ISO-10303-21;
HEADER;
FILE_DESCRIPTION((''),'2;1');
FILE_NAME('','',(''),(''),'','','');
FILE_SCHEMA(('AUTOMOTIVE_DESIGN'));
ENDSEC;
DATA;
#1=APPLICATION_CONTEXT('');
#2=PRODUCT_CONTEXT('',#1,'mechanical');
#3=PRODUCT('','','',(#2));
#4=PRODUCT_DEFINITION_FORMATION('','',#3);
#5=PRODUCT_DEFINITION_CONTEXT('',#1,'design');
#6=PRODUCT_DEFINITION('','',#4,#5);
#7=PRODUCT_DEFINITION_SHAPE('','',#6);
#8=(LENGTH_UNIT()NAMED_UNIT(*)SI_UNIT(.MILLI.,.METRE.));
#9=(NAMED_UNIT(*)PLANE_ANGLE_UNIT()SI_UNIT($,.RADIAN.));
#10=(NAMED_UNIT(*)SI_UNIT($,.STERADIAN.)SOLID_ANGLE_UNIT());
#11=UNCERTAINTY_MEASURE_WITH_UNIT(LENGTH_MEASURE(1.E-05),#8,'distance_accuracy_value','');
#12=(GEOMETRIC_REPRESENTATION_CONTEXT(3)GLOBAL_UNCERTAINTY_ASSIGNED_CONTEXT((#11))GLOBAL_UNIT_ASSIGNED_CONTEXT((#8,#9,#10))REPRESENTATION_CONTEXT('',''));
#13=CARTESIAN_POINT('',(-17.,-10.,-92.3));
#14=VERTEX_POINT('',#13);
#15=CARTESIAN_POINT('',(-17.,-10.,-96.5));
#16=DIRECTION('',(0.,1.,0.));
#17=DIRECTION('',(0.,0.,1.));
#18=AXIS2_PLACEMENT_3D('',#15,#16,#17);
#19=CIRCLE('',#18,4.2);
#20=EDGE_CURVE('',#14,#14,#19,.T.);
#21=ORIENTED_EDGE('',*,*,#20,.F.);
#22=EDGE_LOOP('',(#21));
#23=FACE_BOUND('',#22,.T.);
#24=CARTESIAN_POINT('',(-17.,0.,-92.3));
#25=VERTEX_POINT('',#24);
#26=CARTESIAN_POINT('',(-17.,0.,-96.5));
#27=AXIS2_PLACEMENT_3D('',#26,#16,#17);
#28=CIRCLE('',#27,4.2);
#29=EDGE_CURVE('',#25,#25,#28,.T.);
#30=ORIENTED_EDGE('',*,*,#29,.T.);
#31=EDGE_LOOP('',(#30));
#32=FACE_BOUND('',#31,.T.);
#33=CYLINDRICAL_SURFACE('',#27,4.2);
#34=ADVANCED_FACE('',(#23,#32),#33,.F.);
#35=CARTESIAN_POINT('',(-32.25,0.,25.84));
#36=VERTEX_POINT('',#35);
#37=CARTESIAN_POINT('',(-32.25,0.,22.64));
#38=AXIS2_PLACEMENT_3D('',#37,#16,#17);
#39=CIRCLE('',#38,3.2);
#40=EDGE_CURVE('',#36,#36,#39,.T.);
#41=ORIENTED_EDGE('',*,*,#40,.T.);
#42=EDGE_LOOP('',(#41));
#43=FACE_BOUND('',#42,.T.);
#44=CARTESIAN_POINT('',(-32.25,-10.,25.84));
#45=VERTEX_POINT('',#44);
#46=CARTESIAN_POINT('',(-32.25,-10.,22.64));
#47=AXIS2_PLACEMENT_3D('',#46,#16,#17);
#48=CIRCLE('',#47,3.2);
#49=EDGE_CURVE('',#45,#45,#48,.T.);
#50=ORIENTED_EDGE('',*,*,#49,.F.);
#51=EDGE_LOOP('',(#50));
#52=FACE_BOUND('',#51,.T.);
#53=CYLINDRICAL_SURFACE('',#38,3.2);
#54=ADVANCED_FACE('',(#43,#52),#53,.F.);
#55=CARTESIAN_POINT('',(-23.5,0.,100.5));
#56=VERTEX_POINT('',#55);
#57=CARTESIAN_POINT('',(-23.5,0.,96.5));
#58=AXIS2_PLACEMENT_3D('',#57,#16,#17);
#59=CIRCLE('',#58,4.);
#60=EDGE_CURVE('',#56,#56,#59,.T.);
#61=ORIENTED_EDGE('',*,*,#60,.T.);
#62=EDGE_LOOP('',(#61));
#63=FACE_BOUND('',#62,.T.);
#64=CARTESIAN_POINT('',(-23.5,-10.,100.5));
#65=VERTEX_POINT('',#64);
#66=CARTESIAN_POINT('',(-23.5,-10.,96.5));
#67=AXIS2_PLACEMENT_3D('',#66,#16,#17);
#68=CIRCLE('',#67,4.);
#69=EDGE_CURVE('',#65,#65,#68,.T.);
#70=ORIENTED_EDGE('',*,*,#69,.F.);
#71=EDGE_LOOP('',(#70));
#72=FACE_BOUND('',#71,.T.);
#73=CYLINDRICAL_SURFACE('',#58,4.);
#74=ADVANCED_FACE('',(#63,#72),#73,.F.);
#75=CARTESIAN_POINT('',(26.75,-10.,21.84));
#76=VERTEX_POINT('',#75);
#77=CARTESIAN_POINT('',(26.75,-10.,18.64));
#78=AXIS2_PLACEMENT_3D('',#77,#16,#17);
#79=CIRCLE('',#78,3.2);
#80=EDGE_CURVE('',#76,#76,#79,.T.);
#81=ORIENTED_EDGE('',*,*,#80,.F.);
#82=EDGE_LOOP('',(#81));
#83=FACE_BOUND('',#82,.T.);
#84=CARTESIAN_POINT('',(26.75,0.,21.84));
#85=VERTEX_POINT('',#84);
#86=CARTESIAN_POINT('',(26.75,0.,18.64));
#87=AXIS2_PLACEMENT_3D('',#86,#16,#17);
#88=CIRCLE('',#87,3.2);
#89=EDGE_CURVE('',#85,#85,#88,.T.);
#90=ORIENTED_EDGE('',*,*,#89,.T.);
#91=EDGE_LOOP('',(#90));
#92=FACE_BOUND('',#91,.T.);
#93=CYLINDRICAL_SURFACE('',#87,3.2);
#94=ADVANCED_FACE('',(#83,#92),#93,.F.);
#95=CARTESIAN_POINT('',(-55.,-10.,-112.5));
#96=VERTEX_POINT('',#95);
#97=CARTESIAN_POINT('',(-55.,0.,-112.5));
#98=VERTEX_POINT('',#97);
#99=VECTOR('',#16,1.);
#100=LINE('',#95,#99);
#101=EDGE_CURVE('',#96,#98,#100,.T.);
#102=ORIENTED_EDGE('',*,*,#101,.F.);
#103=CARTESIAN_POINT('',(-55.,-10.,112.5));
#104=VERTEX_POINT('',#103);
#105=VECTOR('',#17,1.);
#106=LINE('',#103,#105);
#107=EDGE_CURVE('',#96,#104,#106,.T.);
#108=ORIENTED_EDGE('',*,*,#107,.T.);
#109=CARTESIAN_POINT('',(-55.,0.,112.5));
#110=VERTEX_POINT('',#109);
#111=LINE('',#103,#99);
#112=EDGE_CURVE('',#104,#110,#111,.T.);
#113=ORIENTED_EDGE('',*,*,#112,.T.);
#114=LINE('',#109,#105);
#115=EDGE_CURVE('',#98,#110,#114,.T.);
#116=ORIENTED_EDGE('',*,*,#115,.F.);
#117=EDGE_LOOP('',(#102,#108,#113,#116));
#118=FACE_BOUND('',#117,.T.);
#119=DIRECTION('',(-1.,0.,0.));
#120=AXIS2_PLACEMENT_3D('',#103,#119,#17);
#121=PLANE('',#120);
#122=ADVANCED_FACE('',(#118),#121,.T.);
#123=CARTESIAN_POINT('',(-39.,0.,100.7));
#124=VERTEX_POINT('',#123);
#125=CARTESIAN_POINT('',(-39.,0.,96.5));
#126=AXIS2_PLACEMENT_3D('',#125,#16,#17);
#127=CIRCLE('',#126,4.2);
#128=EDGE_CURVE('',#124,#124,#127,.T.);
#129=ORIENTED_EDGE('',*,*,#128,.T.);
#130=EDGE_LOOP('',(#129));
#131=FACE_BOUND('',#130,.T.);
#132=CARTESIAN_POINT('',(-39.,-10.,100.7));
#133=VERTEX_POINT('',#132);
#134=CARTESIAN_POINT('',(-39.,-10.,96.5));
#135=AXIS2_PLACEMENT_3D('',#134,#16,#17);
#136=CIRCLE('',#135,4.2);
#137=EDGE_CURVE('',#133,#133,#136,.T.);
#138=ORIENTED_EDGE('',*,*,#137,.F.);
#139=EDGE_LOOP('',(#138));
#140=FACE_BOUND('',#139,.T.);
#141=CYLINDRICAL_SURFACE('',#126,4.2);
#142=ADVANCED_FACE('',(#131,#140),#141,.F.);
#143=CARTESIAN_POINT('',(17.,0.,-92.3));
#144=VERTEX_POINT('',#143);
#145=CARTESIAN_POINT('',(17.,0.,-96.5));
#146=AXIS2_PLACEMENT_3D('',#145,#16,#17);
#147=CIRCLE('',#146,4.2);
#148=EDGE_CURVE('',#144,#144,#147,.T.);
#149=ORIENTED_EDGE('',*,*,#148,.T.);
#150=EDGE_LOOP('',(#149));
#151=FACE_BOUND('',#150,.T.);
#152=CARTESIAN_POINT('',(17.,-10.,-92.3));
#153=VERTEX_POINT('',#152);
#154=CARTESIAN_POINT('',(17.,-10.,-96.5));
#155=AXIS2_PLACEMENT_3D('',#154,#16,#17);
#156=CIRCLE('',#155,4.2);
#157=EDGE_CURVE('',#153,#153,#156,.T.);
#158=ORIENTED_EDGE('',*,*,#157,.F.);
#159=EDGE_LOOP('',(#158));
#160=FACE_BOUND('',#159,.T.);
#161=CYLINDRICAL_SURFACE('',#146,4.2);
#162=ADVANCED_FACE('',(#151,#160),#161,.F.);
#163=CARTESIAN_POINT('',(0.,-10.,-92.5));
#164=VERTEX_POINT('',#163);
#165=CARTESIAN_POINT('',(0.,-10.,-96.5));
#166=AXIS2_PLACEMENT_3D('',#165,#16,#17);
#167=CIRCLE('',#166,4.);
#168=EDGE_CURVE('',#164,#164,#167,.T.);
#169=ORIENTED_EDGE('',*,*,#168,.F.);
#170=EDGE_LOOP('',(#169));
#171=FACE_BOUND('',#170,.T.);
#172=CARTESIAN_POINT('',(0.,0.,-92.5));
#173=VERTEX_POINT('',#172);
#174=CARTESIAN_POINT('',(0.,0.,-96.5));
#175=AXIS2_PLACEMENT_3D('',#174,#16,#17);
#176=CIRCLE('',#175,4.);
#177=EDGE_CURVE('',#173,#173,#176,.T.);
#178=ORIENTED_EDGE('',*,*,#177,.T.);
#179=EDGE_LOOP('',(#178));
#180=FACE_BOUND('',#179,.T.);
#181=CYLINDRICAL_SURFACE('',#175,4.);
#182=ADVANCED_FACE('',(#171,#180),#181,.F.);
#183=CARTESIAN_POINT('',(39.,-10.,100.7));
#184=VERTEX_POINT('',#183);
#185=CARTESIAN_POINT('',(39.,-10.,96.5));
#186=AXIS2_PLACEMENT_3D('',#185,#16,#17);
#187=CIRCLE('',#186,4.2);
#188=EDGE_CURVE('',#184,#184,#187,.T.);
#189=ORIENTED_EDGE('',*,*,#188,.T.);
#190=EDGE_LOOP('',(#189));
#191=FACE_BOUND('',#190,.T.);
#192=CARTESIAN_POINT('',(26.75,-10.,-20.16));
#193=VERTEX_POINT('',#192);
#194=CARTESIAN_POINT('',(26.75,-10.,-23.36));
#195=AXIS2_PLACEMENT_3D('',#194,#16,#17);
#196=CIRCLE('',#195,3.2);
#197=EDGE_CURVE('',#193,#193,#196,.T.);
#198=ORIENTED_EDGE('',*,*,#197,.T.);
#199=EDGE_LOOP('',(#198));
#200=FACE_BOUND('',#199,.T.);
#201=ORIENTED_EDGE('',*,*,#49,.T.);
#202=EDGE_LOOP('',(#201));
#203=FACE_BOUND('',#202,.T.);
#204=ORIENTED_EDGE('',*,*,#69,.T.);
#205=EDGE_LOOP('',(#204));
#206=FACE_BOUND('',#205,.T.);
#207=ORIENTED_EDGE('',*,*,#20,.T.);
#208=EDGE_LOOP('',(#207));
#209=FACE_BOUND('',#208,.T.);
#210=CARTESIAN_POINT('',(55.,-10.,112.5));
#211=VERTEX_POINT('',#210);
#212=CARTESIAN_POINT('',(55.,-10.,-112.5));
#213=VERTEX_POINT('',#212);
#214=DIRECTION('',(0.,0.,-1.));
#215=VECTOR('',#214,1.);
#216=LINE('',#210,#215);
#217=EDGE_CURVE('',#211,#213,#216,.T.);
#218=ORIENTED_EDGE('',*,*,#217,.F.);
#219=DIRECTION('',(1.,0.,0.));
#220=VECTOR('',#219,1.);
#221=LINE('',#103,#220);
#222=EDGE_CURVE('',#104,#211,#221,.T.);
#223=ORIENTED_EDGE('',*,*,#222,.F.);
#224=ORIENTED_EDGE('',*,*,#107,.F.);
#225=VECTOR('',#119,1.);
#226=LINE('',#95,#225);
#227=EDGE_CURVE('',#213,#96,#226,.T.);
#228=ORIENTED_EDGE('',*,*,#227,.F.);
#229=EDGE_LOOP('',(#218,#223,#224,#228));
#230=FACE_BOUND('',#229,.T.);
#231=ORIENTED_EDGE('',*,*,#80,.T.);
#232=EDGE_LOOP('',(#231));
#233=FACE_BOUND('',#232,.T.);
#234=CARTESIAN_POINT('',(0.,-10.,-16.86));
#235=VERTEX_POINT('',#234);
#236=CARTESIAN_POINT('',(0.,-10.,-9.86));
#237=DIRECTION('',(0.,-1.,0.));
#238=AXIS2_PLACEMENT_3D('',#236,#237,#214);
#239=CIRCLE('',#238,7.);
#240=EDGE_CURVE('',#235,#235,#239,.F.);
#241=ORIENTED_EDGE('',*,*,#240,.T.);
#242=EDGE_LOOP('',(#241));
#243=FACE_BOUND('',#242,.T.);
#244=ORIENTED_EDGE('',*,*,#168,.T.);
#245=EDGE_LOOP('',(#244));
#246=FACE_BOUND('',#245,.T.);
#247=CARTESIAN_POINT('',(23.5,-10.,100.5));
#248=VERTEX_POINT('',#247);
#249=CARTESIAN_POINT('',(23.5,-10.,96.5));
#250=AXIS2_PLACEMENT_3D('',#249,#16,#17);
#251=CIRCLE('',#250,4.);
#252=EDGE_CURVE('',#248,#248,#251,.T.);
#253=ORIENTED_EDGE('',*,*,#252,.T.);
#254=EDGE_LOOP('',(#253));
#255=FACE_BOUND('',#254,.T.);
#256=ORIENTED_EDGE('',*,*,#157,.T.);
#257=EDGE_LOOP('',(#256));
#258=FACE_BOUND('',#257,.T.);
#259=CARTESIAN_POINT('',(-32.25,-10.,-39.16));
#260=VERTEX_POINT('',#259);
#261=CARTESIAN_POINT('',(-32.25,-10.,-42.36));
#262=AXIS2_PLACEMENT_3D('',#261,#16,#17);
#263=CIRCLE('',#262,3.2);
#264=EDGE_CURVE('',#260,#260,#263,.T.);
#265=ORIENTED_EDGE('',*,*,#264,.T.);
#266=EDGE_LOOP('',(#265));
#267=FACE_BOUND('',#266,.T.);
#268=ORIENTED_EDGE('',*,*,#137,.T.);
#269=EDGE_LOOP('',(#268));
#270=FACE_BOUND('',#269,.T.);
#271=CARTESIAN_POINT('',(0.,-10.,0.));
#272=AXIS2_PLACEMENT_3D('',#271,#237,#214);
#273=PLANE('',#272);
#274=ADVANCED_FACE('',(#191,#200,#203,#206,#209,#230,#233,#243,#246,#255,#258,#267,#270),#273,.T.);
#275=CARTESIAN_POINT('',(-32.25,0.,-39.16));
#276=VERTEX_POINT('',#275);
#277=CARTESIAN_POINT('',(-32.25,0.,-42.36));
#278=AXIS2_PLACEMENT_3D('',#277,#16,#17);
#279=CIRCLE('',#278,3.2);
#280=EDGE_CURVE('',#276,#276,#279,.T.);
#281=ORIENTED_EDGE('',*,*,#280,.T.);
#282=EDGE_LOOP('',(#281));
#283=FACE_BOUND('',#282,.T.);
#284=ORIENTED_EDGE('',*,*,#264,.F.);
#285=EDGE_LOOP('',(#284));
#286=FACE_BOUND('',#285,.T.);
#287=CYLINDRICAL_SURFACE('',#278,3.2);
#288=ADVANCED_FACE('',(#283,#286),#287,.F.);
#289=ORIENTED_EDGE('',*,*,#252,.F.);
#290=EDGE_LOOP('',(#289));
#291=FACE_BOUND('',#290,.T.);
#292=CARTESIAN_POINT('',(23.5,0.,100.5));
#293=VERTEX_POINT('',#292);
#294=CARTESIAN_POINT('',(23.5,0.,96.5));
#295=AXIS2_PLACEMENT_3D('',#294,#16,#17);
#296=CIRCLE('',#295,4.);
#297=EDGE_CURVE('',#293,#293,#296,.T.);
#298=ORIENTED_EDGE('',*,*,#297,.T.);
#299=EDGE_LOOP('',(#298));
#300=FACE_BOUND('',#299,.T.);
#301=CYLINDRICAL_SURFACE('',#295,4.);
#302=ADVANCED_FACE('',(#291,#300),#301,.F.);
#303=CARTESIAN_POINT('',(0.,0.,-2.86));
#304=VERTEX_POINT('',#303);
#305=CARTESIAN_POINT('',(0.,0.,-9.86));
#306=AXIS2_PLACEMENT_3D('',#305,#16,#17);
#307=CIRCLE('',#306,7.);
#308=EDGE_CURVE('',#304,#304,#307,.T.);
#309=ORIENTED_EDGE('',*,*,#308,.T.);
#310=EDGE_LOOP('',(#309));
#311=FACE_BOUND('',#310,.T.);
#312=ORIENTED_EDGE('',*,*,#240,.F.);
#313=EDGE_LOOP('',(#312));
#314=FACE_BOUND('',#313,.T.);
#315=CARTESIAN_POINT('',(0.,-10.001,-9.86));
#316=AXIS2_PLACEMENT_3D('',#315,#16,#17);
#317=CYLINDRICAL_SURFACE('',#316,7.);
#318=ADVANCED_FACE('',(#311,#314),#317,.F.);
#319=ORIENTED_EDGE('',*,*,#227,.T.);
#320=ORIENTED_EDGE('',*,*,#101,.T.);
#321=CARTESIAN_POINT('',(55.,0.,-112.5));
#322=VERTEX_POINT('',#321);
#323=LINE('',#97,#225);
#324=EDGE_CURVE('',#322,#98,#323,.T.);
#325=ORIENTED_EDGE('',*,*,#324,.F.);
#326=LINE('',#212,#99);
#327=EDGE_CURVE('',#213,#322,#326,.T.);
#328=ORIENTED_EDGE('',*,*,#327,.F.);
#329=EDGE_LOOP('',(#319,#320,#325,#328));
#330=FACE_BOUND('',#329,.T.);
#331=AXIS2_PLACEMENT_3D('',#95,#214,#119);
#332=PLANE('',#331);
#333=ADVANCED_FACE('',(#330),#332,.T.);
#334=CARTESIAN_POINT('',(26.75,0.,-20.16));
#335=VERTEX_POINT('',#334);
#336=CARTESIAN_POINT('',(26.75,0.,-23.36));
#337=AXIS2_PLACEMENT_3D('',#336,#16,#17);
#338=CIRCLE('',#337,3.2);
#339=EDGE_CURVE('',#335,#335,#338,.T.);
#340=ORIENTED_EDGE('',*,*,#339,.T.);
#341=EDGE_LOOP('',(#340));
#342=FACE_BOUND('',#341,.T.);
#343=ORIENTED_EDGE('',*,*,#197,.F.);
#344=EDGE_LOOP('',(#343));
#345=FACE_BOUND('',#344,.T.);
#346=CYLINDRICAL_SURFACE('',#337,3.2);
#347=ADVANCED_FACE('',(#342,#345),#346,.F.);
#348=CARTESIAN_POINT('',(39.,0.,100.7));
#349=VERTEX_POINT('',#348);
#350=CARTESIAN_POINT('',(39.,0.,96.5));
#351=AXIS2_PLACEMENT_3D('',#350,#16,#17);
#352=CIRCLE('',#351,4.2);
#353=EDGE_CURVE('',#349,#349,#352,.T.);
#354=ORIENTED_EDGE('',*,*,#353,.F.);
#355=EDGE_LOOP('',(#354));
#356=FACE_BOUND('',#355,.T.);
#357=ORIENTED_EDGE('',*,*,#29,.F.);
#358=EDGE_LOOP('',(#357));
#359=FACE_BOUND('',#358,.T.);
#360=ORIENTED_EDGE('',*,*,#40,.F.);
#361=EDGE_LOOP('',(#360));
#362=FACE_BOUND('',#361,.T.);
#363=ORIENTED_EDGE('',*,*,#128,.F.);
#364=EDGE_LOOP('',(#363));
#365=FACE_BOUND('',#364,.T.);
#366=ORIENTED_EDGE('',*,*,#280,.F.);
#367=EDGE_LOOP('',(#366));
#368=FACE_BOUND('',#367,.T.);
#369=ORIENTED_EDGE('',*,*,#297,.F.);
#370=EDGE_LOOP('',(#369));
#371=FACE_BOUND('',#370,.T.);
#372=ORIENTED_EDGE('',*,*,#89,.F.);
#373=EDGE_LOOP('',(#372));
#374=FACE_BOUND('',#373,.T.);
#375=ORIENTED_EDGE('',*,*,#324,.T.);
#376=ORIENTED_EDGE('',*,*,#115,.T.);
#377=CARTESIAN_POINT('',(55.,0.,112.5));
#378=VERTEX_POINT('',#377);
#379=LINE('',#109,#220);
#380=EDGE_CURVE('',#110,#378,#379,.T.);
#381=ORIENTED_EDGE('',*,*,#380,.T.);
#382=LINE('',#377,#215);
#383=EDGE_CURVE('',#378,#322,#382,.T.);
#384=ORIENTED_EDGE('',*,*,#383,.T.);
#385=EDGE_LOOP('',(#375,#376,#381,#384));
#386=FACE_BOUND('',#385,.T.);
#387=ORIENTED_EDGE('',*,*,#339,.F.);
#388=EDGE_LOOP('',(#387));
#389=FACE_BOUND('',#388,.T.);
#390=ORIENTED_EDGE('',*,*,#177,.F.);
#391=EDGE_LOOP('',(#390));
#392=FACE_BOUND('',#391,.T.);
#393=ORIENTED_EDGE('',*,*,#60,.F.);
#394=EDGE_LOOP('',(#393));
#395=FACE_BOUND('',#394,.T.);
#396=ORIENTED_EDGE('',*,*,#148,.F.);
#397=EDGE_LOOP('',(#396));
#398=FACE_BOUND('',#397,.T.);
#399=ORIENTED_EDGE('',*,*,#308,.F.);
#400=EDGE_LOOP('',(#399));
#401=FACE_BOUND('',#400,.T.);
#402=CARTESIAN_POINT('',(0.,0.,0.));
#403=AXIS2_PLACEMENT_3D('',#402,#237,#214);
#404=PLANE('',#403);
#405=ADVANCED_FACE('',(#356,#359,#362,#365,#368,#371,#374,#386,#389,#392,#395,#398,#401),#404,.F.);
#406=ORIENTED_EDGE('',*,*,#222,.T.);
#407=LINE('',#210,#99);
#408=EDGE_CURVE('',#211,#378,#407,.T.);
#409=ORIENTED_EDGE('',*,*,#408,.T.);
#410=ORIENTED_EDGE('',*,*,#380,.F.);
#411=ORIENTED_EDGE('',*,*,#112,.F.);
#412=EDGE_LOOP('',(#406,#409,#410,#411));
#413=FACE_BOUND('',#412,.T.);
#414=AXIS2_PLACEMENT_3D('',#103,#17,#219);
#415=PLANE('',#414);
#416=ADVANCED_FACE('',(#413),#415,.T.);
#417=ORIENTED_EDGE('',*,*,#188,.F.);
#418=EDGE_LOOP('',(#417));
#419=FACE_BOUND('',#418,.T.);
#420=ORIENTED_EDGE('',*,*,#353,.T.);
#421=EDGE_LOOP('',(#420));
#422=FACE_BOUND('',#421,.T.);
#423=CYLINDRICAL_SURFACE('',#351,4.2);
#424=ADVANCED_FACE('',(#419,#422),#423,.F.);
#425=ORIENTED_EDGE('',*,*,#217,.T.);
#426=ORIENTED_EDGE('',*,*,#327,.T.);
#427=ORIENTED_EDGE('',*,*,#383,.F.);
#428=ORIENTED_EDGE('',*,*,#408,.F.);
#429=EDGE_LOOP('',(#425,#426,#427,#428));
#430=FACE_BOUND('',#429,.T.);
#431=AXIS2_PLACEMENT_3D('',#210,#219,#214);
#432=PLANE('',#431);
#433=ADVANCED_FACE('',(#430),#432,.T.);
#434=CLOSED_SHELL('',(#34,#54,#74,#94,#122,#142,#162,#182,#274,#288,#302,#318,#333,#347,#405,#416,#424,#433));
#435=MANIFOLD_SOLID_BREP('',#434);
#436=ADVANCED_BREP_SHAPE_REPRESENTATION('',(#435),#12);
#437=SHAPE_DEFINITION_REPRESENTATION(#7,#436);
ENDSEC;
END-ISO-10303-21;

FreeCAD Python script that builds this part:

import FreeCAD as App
import Part
import Sketcher
Q = App.Units.Quantity

doc = App.newDocument("Part")
body = doc.addObject("PartDesign::Body", "Body")

sketch1 = body.newObject("Sketcher::SketchObject", "Sketch")
sketch1.AttachmentSupport = (doc.getObject("XZ_Plane"), [""])
sketch1.MapMode = "FlatFace"
sketch1.addGeometry([
    Part.LineSegment(App.Vector(-55, -112, 0), App.Vector(-55, 112, 0)),
    Part.LineSegment(App.Vector(-55, 112, 0), App.Vector(55, 112, 0)),
    Part.LineSegment(App.Vector(55, 112, 0), App.Vector(55, -112, 0)),
    Part.LineSegment(App.Vector(55, -112, 0), App.Vector(-55, -112, 0)),
], False)
sketch1.addConstraint([
    Sketcher.Constraint("Coincident", 0, 2, 1, 1),
    Sketcher.Constraint("Coincident", 1, 2, 2, 1),
    Sketcher.Constraint("Coincident", 2, 2, 3, 1),
    Sketcher.Constraint("Coincident", 3, 2, 0, 1),
    Sketcher.Constraint("Vertical", 0),
    Sketcher.Constraint("Horizontal", 1),
    Sketcher.Constraint("Vertical", 2),
    Sketcher.Constraint("Horizontal", 3),
    Sketcher.Constraint("Symmetric", 0, 2, 2, 2, -1, 1),
    Sketcher.Constraint("DistanceX", 1, 1, 1, 2, Q("110 mm")),
    Sketcher.Constraint("DistanceY", 0, 1, 0, 2, Q("225 mm")),
])
pad1 = body.newObject("PartDesign::Pad", "Pad")
pad1.Profile = sketch1
pad1.Length = 10

sketch2 = body.newObject("Sketcher::SketchObject", "Sketch001")
sketch2.AttachmentSupport = (doc.getObject("XZ_Plane"), [""])
sketch2.MapMode = "FlatFace"
sketch2.addGeometry([
    Part.Circle(App.Vector(-17, -96.5, 0), App.Vector(0, 0, 1), 4.2),
    Part.Circle(App.Vector(17, -96.5, 0), App.Vector(0, 0, 1), 4.2),
    Part.Circle(App.Vector(-39, 96.5, 0), App.Vector(0, 0, 1), 4.2),
    Part.Circle(App.Vector(39, 96.5, 0), App.Vector(0, 0, 1), 4.2),
], False)
sketch2.addConstraint([
    Sketcher.Constraint("Equal", 0, 1),
    Sketcher.Constraint("Equal", 1, 2),
    Sketcher.Constraint("Equal", 2, 3),
    Sketcher.Constraint("Symmetric", 0, 3, 1, 3, -2),
    Sketcher.Constraint("Symmetric", 2, 3, 3, 3, -2),
    Sketcher.Constraint("Diameter", 0, Q("8.4 mm")),
    Sketcher.Constraint("DistanceX", 0, 3, -1, 1, Q("17 mm")),
    Sketcher.Constraint("DistanceX", 2, 3, -1, 1, Q("39 mm")),
    Sketcher.Constraint("DistanceY", 0, 3, 2, 3, Q("193 mm")),
    Sketcher.Constraint("DistanceY", 0, 3, -1, 1, Q("96.5 mm")),
])
doc.recompute()
hole = body.newObject("PartDesign::Hole", "Hole")
hole.Profile = sketch2
hole.ThreadType = "None"
hole.Diameter = 8.4
hole.DepthType = "ThroughAll"
hole.Reversed = True

sketch3 = body.newObject("Sketcher::SketchObject", "Sketch002")
sketch3.AttachmentSupport = (doc.getObject("XZ_Plane"), [""])
sketch3.MapMode = "FlatFace"
sketch3.addGeometry([
    Part.Circle(App.Vector(0, -96.5, 0), App.Vector(0, 0, 1), 4),
    Part.Circle(App.Vector(-23.5, 96.5, 0), App.Vector(0, 0, 1), 4),
    Part.Circle(App.Vector(23.5, 96.5, 0), App.Vector(0, 0, 1), 4),
], False)
sketch3.addConstraint([
    Sketcher.Constraint("Equal", 0, 1),
    Sketcher.Constraint("Equal", 1, 2),
    Sketcher.Constraint("Symmetric", 1, 3, 2, 3, -2),
    Sketcher.Constraint("PointOnObject", 0, 3, -2),
    Sketcher.Constraint("Diameter", 0, Q("8 mm")),
    Sketcher.Constraint("DistanceY", 0, 3, 1, 3, Q("193 mm")),
    Sketcher.Constraint("DistanceX", 1, 3, 2, 3, Q("47 mm")),
    Sketcher.Constraint("DistanceY", 0, 3, -1, 1, Q("96.5 mm")),
])
doc.recompute()
hole2 = body.newObject("PartDesign::Hole", "Hole001")
hole2.Profile = sketch3
hole2.ThreadType = "None"
hole2.Diameter = 8
hole2.DepthType = "ThroughAll"
hole2.Reversed = True

sketch4 = body.newObject("Sketcher::SketchObject", "Sketch003")
sketch4.AttachmentSupport = (doc.getObject("XZ_Plane"), [""])
sketch4.MapMode = "FlatFace"
sketch4.addGeometry(Part.Circle(App.Vector(0, -10, 0), App.Vector(0, 0, 1), 7), False)
sketch4.addConstraint([
    Sketcher.Constraint("PointOnObject", 0, 3, -2),
    Sketcher.Constraint("Diameter", 0, Q("14 mm")),
    Sketcher.Constraint("DistanceY", 0, 3, -1, 1, Q("9.86 mm")),
])
pocket1 = body.newObject("PartDesign::Pocket", "Pocket")
pocket1.Profile = sketch4
pocket1.Type = "UpToFirst"
pocket1.Reversed = True

sketch5 = body.newObject("Sketcher::SketchObject", "Sketch004")
sketch5.AttachmentSupport = (doc.getObject("XZ_Plane"), [""])
sketch5.MapMode = "FlatFace"
sketch5.addGeometry([
    Part.Circle(App.Vector(26.8, -23.4, 0), App.Vector(0, 0, 1), 3.2),
    Part.Circle(App.Vector(26.8, 18.6, 0), App.Vector(0, 0, 1), 3.2),
    Part.Circle(App.Vector(-32.2, -42.4, 0), App.Vector(0, 0, 1), 3.2),
    Part.Circle(App.Vector(-32.2, 22.6, 0), App.Vector(0, 0, 1), 3.2),
], False)
sketch5.addConstraint([
    Sketcher.Constraint("Equal", 0, 1),
    Sketcher.Constraint("Equal", 1, 2),
    Sketcher.Constraint("Equal", 2, 3),
    Sketcher.Constraint("Vertical", 0, 3, 1, 3),
    Sketcher.Constraint("Vertical", 2, 3, 3, 3),
    Sketcher.Constraint("Diameter", 0, Q("6.4 mm")),
    Sketcher.Constraint("DistanceY", 0, 3, 1, 3, Q("42 mm")),
    Sketcher.Constraint("DistanceX", 2, 3, 0, 3, Q("59 mm")),
    Sketcher.Constraint("DistanceY", 2, 3, 0, 3, Q("19 mm")),
    Sketcher.Constraint("DistanceY", 1, 3, 3, 3, Q("4 mm")),
    Sketcher.Constraint("DistanceX", -1, 1, 0, 3, Q("26.75 mm")),
    Sketcher.Constraint("DistanceY", 0, 3, -1, 1, Q("23.36 mm")),
])
doc.recompute()
hole3 = body.newObject("PartDesign::Hole", "Hole002")
hole3.Profile = sketch5
hole3.ThreadType = "None"
hole3.Diameter = 6.4
hole3.DepthType = "ThroughAll"
hole3.Reversed = True

doc.recompute()
